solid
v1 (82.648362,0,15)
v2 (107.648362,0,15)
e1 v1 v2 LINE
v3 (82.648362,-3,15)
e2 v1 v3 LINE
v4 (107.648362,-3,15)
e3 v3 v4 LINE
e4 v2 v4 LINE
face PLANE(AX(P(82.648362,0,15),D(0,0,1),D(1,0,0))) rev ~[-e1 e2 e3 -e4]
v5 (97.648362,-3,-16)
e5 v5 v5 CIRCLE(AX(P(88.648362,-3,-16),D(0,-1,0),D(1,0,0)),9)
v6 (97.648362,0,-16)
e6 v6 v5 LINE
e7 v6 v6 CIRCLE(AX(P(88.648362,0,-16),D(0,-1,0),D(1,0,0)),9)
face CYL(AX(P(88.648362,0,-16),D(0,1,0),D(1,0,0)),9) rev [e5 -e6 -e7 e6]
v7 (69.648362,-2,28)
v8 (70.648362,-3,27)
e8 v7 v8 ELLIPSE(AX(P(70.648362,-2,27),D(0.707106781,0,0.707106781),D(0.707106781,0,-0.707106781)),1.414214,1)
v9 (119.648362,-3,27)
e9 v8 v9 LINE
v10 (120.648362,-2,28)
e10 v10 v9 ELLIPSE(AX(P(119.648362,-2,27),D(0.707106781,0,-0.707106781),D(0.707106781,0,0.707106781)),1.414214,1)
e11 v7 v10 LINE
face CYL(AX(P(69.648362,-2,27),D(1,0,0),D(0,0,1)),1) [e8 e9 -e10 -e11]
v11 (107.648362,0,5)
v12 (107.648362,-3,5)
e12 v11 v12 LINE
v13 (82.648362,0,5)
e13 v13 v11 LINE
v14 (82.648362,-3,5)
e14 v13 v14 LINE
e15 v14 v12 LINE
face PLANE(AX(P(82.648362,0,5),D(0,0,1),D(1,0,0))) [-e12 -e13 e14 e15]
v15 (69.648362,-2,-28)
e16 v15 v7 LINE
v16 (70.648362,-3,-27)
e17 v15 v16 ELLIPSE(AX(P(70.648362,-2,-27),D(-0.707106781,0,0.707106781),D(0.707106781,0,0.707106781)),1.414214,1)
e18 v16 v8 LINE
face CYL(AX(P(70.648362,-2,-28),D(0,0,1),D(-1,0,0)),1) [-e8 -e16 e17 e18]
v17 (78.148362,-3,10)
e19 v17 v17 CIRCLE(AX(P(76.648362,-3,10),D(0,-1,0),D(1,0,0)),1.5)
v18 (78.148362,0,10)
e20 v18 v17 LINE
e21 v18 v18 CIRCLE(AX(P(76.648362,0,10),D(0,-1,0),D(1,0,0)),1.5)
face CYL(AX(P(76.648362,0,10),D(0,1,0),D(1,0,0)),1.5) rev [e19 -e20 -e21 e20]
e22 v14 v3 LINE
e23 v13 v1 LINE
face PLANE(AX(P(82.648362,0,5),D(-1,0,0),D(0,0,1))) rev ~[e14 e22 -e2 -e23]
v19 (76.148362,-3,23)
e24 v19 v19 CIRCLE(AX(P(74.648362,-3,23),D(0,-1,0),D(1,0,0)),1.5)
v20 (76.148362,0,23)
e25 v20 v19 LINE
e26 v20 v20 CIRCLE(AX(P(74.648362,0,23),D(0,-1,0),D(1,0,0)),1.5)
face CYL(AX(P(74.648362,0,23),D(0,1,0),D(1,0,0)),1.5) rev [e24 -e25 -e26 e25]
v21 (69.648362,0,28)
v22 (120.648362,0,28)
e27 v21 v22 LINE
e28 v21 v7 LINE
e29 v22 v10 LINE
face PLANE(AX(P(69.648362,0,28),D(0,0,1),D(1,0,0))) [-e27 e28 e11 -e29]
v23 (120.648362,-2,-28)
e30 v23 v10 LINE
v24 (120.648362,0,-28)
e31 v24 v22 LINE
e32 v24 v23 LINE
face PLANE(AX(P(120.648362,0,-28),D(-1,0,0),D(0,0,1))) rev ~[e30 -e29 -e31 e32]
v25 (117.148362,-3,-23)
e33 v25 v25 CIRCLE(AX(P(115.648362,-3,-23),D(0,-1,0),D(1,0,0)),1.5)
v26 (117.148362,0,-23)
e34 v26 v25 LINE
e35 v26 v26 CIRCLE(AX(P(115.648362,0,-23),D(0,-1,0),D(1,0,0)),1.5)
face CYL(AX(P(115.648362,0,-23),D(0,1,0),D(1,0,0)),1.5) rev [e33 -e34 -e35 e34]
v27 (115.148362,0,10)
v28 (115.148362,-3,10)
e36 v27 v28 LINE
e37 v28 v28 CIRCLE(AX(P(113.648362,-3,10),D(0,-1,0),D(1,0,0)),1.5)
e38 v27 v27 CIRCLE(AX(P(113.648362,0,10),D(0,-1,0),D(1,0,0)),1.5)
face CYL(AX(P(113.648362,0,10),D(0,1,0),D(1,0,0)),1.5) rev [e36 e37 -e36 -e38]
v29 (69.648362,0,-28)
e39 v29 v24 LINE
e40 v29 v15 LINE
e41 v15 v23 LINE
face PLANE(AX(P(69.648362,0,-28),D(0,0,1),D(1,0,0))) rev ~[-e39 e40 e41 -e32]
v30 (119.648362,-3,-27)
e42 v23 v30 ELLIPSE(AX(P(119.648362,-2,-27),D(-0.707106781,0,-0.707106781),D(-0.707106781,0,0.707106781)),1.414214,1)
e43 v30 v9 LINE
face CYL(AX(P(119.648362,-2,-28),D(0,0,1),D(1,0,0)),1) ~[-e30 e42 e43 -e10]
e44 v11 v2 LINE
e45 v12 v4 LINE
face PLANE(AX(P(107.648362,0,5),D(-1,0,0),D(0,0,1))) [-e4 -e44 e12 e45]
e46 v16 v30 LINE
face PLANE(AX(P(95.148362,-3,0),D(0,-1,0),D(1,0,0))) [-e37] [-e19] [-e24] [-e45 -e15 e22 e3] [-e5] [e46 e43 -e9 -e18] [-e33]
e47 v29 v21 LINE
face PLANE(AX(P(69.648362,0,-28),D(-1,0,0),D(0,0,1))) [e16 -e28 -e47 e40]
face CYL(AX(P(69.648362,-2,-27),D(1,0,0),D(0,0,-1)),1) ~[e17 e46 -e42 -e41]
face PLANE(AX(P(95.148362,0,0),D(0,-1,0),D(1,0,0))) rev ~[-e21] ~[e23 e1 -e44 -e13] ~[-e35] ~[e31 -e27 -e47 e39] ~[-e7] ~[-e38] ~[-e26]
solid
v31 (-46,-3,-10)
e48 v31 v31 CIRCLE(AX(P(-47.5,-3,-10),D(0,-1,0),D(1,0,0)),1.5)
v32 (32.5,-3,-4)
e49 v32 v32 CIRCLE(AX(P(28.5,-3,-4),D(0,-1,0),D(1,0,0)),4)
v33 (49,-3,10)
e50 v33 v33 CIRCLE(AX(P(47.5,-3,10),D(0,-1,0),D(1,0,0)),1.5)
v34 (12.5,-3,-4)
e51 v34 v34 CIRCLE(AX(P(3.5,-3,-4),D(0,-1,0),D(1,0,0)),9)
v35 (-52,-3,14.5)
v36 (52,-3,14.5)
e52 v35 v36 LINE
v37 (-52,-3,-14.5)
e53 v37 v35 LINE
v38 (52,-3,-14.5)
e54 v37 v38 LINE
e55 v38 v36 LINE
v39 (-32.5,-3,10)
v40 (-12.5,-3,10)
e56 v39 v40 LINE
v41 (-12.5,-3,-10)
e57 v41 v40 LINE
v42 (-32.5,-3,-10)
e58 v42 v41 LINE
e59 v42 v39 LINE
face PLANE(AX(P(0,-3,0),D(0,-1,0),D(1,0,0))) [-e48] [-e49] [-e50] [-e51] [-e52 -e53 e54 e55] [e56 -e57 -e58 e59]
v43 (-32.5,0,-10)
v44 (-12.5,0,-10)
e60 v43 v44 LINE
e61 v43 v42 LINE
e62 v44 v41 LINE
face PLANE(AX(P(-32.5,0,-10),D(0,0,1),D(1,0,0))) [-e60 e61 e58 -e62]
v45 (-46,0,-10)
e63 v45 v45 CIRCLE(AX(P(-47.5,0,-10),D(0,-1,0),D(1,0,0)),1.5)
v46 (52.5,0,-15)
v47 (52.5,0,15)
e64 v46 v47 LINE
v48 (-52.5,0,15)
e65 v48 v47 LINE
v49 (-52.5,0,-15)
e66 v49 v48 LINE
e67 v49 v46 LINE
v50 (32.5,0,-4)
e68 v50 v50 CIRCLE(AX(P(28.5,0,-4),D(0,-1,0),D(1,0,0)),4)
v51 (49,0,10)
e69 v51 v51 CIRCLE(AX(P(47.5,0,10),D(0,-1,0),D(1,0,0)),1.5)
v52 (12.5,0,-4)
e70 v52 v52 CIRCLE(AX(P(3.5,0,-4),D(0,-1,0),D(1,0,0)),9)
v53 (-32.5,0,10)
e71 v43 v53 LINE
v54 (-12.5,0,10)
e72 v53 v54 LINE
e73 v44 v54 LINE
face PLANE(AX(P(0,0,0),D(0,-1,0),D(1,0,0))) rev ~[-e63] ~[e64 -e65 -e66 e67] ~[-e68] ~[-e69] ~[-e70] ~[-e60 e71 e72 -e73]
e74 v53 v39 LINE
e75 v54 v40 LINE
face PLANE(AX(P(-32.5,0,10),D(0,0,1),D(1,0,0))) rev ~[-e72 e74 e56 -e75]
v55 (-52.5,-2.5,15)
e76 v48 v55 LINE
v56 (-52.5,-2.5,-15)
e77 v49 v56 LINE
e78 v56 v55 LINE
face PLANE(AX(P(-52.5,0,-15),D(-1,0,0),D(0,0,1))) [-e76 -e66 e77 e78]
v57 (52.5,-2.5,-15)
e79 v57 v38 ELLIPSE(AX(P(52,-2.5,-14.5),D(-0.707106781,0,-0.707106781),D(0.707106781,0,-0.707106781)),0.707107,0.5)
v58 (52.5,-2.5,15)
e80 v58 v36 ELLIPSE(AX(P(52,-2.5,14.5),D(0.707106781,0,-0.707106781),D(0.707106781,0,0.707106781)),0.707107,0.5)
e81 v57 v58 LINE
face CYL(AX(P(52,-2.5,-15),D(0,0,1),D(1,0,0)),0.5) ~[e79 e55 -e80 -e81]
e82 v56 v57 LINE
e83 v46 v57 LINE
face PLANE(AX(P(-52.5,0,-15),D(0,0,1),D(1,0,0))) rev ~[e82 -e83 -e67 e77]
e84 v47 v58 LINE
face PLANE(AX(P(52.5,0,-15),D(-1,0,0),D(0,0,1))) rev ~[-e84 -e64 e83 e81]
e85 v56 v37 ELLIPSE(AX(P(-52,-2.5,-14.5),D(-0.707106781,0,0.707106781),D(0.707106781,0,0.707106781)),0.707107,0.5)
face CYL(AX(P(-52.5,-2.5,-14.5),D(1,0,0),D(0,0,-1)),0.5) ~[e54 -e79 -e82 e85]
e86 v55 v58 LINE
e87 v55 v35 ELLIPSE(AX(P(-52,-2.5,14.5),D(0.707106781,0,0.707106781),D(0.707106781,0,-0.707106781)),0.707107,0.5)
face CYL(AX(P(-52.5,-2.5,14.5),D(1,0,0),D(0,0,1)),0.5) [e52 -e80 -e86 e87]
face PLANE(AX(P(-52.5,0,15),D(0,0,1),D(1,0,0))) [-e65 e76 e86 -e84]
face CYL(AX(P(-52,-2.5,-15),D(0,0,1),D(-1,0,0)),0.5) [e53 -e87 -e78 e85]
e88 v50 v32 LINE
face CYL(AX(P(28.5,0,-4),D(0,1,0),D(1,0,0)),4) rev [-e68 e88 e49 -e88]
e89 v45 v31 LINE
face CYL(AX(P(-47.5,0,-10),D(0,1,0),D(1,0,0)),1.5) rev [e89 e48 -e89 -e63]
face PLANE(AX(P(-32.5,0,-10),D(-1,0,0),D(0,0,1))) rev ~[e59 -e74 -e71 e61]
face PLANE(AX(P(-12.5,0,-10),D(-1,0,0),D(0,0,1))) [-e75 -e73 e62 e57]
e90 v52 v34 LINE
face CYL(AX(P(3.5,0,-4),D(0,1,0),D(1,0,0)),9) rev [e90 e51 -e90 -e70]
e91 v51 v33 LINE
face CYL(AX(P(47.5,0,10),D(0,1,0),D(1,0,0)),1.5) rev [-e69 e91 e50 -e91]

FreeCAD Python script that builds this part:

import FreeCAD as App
import Part
import Sketcher

V = App.Vector
Q = App.Units.Quantity


def edges_at(feature, points):
    """Names of the edges that pass closest to the given points."""
    edges = feature.Shape.Edges
    near = lambda p: min(range(len(edges)), key=lambda i: edges[i].distToShape(Part.Vertex(*p))[0])
    return sorted({f"Edge{near(p) + 1}" for p in points})

doc = App.newDocument("Part")
body = doc.addObject("PartDesign::Body", "Body")

# Sketch on XZ plane
sketch1 = doc.addObject("Sketcher::SketchObject", "Sketch")
body.addObject(sketch1)
sketch1.AttachmentSupport = (doc.XZ_Plane, [""])
sketch1.MapMode = "FlatFace"
sketch1.addGeometry(Part.LineSegment(V(-52.5, 15, 0), V(-52.5, -15, 0)), False)
sketch1.addGeometry(Part.LineSegment(V(-52.5, -15, 0), V(52.5, -15, 0)), False)
sketch1.addGeometry(Part.LineSegment(V(52.5, -15, 0), V(52.5, 15, 0)), False)
sketch1.addGeometry(Part.LineSegment(V(52.5, 15, 0), V(-52.5, 15, 0)), False)
sketch1.addGeometry(Part.Circle(V(-47.5, -10, 0), V(0, 0, 1), 1.5), False)
sketch1.addGeometry(Part.Circle(V(3.5, -4, 0), V(0, 0, 1), 9), False)
sketch1.addGeometry(Part.Circle(V(28.5, -4, 0), V(0, 0, 1), 4), False)
sketch1.addGeometry(Part.LineSegment(V(-12.5, -10, 0), V(-32.5, -10, 0)), False)
sketch1.addGeometry(Part.LineSegment(V(-32.5, -10, 0), V(-32.5, 10, 0)), False)
sketch1.addGeometry(Part.LineSegment(V(-32.5, 10, 0), V(-12.5, 10, 0)), False)
sketch1.addGeometry(Part.LineSegment(V(-12.5, 10, 0), V(-12.5, -10, 0)), False)
sketch1.addGeometry(Part.Circle(V(47.5, 10, 0), V(0, 0, 1), 1.5), False)
sketch1.addConstraint(Sketcher.Constraint("Coincident", 0, 2, 1, 1))
sketch1.addConstraint(Sketcher.Constraint("Coincident", 1, 2, 2, 1))
sketch1.addConstraint(Sketcher.Constraint("Coincident", 2, 2, 3, 1))
sketch1.addConstraint(Sketcher.Constraint("Coincident", 3, 2, 0, 1))
sketch1.addConstraint(Sketcher.Constraint("Coincident", 7, 2, 8, 1))
sketch1.addConstraint(Sketcher.Constraint("Coincident", 8, 2, 9, 1))
sketch1.addConstraint(Sketcher.Constraint("Coincident", 9, 2, 10, 1))
sketch1.addConstraint(Sketcher.Constraint("Coincident", 10, 2, 7, 1))
sketch1.addConstraint(Sketcher.Constraint("Vertical", 0))
sketch1.addConstraint(Sketcher.Constraint("Horizontal", 1))
sketch1.addConstraint(Sketcher.Constraint("Vertical", 2))
sketch1.addConstraint(Sketcher.Constraint("Horizontal", 3))
sketch1.addConstraint(Sketcher.Constraint("Horizontal", 7))
sketch1.addConstraint(Sketcher.Constraint("Vertical", 8))
sketch1.addConstraint(Sketcher.Constraint("Horizontal", 9))
sketch1.addConstraint(Sketcher.Constraint("Vertical", 10))
sketch1.addConstraint(Sketcher.Constraint("Equal", 4, 11))
sketch1.addConstraint(Sketcher.Constraint("Symmetric", 4, 3, 11, 3, -1, 1))
sketch1.addConstraint(Sketcher.Constraint("Symmetric", 0, 2, 2, 2, -1, 1))
sketch1.addConstraint(Sketcher.Constraint("Horizontal", 5, 3, 6, 3))
sketch1.addConstraint(Sketcher.Constraint("Horizontal", 4, 3, 7, 2))
sketch1.addConstraint(Sketcher.Constraint("Horizontal", 11, 3, 8, 2))
sketch1.addConstraint(Sketcher.Constraint("Equal", 9, 8))
sketch1.addConstraint(Sketcher.Constraint("Diameter", 4, Q("3 mm")))
sketch1.addConstraint(Sketcher.Constraint("Diameter", 5, Q("18 mm")))
sketch1.addConstraint(Sketcher.Constraint("Diameter", 6, Q("8 mm")))
sketch1.addConstraint(Sketcher.Constraint("DistanceX", 1, 1, 1, 2, Q("105 mm")))
sketch1.addConstraint(Sketcher.Constraint("DistanceX", 7, 2, 7, 1, Q("20 mm")))
sketch1.addConstraint(Sketcher.Constraint("DistanceY", 0, 2, 0, 1, Q("30 mm")))
sketch1.addConstraint(Sketcher.Constraint("DistanceY", 5, 3, -1, 1, Q("4 mm")))
sketch1.addConstraint(Sketcher.Constraint("DistanceX", 4, 3, 5, 3, Q("51 mm")))
sketch1.addConstraint(Sketcher.Constraint("DistanceX", 5, 3, 6, 3, Q("25 mm")))
sketch1.addConstraint(Sketcher.Constraint("DistanceX", 6, 3, 11, 3, Q("19 mm")))
sketch1.addConstraint(Sketcher.Constraint("DistanceX", 4, 3, 7, 2, Q("15 mm")))
pad1 = doc.addObject("PartDesign::Pad", "Pad")
body.addObject(pad1)
pad1.Profile = sketch1
pad1.Length = 3
doc.recompute()

fillet = doc.addObject("PartDesign::Fillet", "Fillet")
body.addObject(fillet)
fillet.Base = (pad1, edges_at(pad1, [
    (0, -3, 15),
    (-52.5, -3, 0),
    (0, -3, -15),
    (52.5, -3, 0),
]))
fillet.Radius = 0.5
body2 = doc.addObject("PartDesign::Body", "Body001")

# Sketch on XZ plane
sketch2 = doc.addObject("Sketcher::SketchObject", "Sketch001")
body2.addObject(sketch2)
sketch2.AttachmentSupport = (doc.getObject("XZ_Plane001"), [""])
sketch2.MapMode = "FlatFace"
sketch2.addGeometry(Part.LineSegment(V(69.648362, 28, 0), V(69.648362, -28, 0)), False)
sketch2.addGeometry(Part.LineSegment(V(69.648362, -28, 0), V(120.648362, -28, 0)), False)
sketch2.addGeometry(Part.LineSegment(V(120.648362, -28, 0), V(120.648362, 28, 0)), False)
sketch2.addGeometry(Part.LineSegment(V(120.648362, 28, 0), V(69.648362, 28, 0)), False)
sketch2.addGeometry(Part.Circle(V(88.648362, -16, 0), V(0, 0, 1), 9), False)
sketch2.addGeometry(Part.Circle(V(115.648362, -23, 0), V(0, 0, 1), 1.5), False)
sketch2.addGeometry(Part.Circle(V(76.648362, 10, 0), V(0, 0, 1), 1.5), False)
sketch2.addGeometry(Part.Circle(V(74.648362, 23, 0), V(0, 0, 1), 1.5), False)
sketch2.addGeometry(Part.LineSegment(V(107.648362, 5, 0), V(82.648362, 5, 0)), False)
sketch2.addGeometry(Part.LineSegment(V(82.648362, 5, 0), V(82.648362, 15, 0)), False)
sketch2.addGeometry(Part.LineSegment(V(82.648362, 15, 0), V(107.648362, 15, 0)), False)
sketch2.addGeometry(Part.LineSegment(V(107.648362, 15, 0), V(107.648362, 5, 0)), False)
sketch2.addGeometry(Part.Circle(V(113.648362, 10, 0), V(0, 0, 1), 1.5), False)
sketch2.addConstraint(Sketcher.Constraint("Coincident", 0, 2, 1, 1))
sketch2.addConstraint(Sketcher.Constraint("Coincident", 1, 2, 2, 1))
sketch2.addConstraint(Sketcher.Constraint("Coincident", 2, 2, 3, 1))
sketch2.addConstraint(Sketcher.Constraint("Coincident", 3, 2, 0, 1))
sketch2.addConstraint(Sketcher.Constraint("Coincident", 8, 2, 9, 1))
sketch2.addConstraint(Sketcher.Constraint("Coincident", 9, 2, 10, 1))
sketch2.addConstraint(Sketcher.Constraint("Coincident", 10, 2, 11, 1))
sketch2.addConstraint(Sketcher.Constraint("Coincident", 11, 2, 8, 1))
sketch2.addConstraint(Sketcher.Constraint("Vertical", 0))
sketch2.addConstraint(Sketcher.Constraint("Horizontal", 1))
sketch2.addConstraint(Sketcher.Constraint("Vertical", 2))
sketch2.addConstraint(Sketcher.Constraint("Horizontal", 3))
sketch2.addConstraint(Sketcher.Constraint("Horizontal", 8))
sketch2.addConstraint(Sketcher.Constraint("Vertical", 9))
sketch2.addConstraint(Sketcher.Constraint("Horizontal", 10))
sketch2.addConstraint(Sketcher.Constraint("Vertical", 11))
sketch2.addConstraint(Sketcher.Constraint("Equal", 5, 6))
sketch2.addConstraint(Sketcher.Constraint("Equal", 6, 7))
sketch2.addConstraint(Sketcher.Constraint("Equal", 7, 12))
sketch2.addConstraint(Sketcher.Constraint("Horizontal", 6, 3, 12, 3))
sketch2.addConstraint(Sketcher.Constraint("Diameter", 4, Q("18 mm")))
sketch2.addConstraint(Sketcher.Constraint("Diameter", 5, Q("3 mm")))
sketch2.addConstraint(Sketcher.Constraint("DistanceX", 1, 1, 1, 2, Q("51 mm")))
sketch2.addConstraint(Sketcher.Constraint("DistanceX", 8, 2, 8, 1, Q("25 mm")))
sketch2.addConstraint(Sketcher.Constraint("DistanceY", 0, 2, 0, 1, Q("56 mm")))
sketch2.addConstraint(Sketcher.Constraint("DistanceY", 9, 1, 9, 2, Q("10 mm")))
sketch2.addConstraint(Sketcher.Constraint("DistanceY", 4, 3, -1, 1, Q("16 mm")))
sketch2.addConstraint(Sketcher.Constraint("DistanceY", 5, 3, -1, 1, Q("23 mm")))
sketch2.addConstraint(Sketcher.Constraint("DistanceY", -1, 1, 6, 3, Q("10 mm")))
sketch2.addConstraint(Sketcher.Constraint("DistanceY", -1, 1, 7, 3, Q("23 mm")))
sketch2.addConstraint(Sketcher.Constraint("DistanceY", 0, 2, -1, 1, Q("28 mm")))
sketch2.addConstraint(Sketcher.Constraint("DistanceY", -1, 1, 8, 2, Q("5 mm")))
sketch2.addConstraint(Sketcher.Constraint("DistanceX", 4, 3, 5, 3, Q("27 mm")))
sketch2.addConstraint(Sketcher.Constraint("DistanceX", 6, 3, 4, 3, Q("12 mm")))
sketch2.addConstraint(Sketcher.Constraint("DistanceX", 7, 3, 6, 3, Q("2 mm")))
sketch2.addConstraint(Sketcher.Constraint("DistanceX", 12, 3, 5, 3, Q("2 mm")))
sketch2.addConstraint(Sketcher.Constraint("DistanceX", 0, 2, 4, 3, Q("19 mm")))
sketch2.addConstraint(Sketcher.Constraint("DistanceX", 6, 3, 8, 2, Q("6 mm")))
sketch2.addConstraint(Sketcher.Constraint("DistanceX", -1, 1, 4, 3, Q("88.648362 mm")))
pad2 = doc.addObject("PartDesign::Pad", "Pad001")
body2.addObject(pad2)
pad2.Profile = sketch2
pad2.Length = 3
doc.recompute()

fillet2 = doc.addObject("PartDesign::Fillet", "Fillet001")
body2.addObject(fillet2)
fillet2.Base = (pad2, edges_at(pad2, [
    (95.148, -3, 28),
    (69.648, -3, 0),
    (120.648, -3, 0),
    (95.148, -3, -28),
]))
fillet2.Radius = 1

doc.recompute()
